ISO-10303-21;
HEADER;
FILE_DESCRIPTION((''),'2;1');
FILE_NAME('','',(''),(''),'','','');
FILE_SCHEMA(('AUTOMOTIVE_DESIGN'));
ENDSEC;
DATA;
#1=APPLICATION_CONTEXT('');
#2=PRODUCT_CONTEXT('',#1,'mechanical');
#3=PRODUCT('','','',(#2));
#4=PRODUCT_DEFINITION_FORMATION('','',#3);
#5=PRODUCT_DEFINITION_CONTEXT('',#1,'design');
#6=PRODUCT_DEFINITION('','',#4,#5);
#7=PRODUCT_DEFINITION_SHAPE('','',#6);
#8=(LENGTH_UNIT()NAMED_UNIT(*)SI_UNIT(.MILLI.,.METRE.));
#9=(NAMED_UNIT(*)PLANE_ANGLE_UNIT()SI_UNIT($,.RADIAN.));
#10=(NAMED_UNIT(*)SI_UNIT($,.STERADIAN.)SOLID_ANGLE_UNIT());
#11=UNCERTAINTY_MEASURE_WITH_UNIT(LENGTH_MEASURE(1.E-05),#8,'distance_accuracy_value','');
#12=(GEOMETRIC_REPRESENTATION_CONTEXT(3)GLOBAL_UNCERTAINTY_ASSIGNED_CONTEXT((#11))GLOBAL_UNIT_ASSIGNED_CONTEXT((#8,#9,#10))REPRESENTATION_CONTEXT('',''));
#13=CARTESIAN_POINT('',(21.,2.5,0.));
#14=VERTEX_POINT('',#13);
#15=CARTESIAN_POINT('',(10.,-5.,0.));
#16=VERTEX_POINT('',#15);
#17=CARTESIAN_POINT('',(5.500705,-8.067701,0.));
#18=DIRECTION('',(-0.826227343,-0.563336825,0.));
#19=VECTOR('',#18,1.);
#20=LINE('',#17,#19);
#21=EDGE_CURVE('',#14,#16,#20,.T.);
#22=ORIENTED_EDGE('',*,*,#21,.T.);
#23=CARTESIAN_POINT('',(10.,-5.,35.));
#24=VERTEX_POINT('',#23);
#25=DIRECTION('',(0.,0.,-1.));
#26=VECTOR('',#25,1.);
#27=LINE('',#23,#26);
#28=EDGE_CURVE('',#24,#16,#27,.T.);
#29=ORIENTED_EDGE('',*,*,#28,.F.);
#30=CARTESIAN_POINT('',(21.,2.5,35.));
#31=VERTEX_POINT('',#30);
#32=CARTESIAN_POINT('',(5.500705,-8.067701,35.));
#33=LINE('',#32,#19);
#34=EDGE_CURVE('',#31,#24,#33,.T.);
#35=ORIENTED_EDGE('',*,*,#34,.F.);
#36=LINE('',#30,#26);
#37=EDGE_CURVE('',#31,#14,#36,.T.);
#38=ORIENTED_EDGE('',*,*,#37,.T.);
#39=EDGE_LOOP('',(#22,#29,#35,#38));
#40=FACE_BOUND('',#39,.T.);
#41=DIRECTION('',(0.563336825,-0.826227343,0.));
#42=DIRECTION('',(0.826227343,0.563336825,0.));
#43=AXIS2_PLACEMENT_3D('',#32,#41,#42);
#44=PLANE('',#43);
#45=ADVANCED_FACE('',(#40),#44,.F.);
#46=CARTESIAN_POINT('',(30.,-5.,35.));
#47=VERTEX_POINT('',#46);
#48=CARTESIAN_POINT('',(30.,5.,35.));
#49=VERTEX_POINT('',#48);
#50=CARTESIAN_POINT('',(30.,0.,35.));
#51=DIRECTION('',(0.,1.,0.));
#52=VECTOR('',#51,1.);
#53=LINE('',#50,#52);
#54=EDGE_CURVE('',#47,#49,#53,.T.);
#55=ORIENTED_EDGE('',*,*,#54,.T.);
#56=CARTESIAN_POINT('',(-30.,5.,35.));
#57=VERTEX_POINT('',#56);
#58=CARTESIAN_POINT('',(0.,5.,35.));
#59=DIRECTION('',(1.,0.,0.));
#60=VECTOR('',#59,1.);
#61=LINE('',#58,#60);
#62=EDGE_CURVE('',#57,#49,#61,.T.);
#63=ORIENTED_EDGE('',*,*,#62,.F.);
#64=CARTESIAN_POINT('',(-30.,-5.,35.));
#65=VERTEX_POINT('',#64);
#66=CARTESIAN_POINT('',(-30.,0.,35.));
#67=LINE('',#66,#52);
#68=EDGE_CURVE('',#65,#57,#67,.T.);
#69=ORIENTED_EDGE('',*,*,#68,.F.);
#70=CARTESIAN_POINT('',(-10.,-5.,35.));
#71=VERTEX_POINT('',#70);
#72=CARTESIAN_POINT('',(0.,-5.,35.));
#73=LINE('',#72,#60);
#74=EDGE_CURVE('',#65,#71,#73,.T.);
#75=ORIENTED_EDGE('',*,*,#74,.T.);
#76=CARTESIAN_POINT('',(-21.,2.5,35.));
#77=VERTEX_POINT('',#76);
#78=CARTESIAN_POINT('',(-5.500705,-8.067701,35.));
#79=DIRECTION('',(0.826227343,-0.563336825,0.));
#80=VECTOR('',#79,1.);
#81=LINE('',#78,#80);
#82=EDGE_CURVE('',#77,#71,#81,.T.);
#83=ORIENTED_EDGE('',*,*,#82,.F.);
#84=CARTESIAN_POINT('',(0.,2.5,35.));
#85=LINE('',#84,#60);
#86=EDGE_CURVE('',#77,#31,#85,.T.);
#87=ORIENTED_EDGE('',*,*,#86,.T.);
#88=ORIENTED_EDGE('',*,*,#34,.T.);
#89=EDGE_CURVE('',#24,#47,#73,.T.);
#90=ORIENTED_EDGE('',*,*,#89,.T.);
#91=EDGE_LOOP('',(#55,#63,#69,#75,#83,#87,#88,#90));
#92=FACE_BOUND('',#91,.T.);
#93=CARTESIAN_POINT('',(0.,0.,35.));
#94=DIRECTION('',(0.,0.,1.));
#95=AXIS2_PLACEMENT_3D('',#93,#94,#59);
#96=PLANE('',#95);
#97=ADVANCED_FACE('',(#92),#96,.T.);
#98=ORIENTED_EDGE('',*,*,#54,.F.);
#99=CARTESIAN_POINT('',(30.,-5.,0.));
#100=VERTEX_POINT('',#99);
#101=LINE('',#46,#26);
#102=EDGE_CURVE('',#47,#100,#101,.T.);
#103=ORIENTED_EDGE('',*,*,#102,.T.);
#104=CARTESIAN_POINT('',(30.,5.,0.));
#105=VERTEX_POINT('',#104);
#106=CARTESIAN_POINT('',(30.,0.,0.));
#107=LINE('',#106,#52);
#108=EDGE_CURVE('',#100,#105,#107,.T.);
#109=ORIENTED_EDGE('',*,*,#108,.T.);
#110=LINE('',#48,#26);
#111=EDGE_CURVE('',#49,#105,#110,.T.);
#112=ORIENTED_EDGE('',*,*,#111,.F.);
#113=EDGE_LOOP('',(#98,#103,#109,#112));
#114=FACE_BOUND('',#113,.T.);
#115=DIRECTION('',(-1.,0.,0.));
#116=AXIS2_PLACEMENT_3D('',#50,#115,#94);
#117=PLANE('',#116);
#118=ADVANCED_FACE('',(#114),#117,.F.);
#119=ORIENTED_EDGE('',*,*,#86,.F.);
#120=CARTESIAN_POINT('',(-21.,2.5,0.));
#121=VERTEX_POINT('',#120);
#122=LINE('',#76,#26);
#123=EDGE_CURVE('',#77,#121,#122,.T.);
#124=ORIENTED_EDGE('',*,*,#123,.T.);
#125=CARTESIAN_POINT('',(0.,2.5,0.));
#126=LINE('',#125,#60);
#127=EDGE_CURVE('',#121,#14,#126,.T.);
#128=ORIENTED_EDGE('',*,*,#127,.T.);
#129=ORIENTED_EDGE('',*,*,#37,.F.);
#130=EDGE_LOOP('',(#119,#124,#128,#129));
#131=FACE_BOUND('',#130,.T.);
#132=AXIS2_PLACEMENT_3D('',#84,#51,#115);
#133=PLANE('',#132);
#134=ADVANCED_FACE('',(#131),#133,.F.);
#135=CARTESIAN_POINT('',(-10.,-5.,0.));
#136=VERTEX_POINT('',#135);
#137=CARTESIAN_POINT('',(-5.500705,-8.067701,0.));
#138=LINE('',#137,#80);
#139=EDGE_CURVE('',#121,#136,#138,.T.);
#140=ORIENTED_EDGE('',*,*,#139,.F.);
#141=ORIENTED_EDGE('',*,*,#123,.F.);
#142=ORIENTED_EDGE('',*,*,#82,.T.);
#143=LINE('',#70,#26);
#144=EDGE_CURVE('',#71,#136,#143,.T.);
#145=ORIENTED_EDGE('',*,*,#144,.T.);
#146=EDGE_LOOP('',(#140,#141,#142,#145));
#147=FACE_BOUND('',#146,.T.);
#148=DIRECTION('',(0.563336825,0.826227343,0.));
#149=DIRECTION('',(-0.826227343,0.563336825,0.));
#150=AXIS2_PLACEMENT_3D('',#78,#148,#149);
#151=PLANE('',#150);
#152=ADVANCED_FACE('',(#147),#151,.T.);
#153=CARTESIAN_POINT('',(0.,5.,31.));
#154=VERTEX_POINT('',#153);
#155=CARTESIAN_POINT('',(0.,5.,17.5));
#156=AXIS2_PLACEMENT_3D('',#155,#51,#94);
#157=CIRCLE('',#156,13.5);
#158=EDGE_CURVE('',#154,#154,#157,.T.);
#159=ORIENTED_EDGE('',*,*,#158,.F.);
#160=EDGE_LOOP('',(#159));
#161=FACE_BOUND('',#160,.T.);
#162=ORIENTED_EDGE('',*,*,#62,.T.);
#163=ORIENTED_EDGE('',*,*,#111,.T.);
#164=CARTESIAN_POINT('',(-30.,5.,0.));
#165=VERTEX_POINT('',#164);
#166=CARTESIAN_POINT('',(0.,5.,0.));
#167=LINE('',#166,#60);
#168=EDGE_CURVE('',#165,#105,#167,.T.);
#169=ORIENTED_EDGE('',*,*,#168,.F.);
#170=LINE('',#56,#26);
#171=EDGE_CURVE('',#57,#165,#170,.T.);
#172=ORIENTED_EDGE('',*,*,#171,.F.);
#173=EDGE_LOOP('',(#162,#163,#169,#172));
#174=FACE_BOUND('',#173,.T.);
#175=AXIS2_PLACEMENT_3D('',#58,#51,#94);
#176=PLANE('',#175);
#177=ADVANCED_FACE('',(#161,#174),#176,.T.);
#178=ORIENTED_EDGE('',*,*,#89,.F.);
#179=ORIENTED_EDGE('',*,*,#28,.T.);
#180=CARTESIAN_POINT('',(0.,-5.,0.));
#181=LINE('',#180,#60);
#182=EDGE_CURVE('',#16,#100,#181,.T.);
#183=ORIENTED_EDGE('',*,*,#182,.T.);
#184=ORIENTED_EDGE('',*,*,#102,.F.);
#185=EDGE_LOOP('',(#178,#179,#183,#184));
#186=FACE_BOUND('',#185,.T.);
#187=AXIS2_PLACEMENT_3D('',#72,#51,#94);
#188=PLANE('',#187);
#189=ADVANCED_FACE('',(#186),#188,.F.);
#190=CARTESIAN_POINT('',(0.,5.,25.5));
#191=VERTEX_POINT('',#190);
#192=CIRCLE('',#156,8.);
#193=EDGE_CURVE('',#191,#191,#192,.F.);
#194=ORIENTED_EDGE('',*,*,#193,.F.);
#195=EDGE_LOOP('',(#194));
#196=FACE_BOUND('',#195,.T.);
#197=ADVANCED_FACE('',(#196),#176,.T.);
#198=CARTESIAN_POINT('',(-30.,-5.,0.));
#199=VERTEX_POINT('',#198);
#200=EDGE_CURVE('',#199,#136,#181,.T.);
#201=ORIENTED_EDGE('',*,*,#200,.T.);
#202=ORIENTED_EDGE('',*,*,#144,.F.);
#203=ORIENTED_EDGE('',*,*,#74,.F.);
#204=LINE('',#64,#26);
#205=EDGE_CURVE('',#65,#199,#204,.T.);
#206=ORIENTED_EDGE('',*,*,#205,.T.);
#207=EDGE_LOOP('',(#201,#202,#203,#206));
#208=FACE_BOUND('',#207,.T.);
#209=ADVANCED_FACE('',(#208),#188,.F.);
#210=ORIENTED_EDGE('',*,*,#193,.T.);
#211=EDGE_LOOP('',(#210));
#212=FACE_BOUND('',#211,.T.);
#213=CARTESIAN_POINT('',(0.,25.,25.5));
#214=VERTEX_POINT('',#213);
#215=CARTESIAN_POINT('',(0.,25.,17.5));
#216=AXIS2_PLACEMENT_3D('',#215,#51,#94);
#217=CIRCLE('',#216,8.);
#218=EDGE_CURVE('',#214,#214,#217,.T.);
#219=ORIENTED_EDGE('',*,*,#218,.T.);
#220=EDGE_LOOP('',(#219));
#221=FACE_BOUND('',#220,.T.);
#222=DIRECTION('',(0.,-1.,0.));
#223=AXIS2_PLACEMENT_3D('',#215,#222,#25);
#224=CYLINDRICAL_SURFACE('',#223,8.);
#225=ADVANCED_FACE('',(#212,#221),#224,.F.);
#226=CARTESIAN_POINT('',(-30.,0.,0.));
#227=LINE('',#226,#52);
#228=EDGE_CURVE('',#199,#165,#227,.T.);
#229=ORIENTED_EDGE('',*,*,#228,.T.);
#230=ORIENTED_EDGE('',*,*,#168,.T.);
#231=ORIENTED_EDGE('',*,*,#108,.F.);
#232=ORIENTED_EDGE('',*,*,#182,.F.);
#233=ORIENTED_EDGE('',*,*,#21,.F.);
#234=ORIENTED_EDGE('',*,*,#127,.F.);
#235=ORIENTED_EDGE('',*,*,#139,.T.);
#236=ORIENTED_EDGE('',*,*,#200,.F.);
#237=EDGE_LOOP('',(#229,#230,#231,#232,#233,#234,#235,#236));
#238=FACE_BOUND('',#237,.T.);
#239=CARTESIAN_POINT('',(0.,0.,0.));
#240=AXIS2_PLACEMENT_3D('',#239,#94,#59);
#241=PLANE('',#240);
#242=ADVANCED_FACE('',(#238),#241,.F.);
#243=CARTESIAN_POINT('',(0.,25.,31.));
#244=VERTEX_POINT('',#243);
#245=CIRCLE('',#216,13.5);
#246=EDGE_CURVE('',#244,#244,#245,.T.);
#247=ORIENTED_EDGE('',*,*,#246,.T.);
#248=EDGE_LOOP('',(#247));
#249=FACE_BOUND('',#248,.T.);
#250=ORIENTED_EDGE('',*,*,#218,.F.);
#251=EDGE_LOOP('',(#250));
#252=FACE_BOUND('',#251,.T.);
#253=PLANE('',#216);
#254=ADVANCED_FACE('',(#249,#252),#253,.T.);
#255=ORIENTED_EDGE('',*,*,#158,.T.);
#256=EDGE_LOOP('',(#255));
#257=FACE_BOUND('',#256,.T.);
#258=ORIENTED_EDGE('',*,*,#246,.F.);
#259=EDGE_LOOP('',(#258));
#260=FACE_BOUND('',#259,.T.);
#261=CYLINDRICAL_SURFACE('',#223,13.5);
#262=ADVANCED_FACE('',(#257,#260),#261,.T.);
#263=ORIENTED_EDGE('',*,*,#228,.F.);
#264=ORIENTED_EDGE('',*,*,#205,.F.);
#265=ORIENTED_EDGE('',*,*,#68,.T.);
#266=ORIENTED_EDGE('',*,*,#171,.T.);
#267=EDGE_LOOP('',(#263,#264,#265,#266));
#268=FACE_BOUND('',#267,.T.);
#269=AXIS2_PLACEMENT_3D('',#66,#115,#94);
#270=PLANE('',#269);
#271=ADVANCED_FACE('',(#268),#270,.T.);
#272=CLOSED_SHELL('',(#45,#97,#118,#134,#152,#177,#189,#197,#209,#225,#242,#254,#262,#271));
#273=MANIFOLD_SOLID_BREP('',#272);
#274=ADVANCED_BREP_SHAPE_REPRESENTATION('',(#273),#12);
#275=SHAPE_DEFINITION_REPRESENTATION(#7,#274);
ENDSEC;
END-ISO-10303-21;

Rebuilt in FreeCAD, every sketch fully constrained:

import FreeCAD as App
import Part
import Sketcher

V = App.Vector
Q = App.Units.Quantity


def add_polygon(sketch, points):
    """Adds a closed chain of lines whose ends are joined by coincident constraints."""
    first, n = sketch.GeometryCount, len(points)
    for a, b in zip(points, points[1:] + points[:1]):
        sketch.addGeometry(Part.LineSegment(App.Vector(*a, 0), App.Vector(*b, 0)), False)
    for i in range(n):
        sketch.addConstraint(Sketcher.Constraint("Coincident", first + i, 2, first + (i + 1) % n, 1))

doc = App.newDocument("Part")
body = doc.addObject("PartDesign::Body", "Body")

# Sketch on XY plane
sketch1 = doc.addObject("Sketcher::SketchObject", "Sketch")
body.addObject(sketch1)
sketch1.AttachmentSupport = (doc.XY_Plane, [""])
sketch1.MapMode = "FlatFace"
add_polygon(sketch1, [(-30, 5), (-30, -5), (-10, -5), (-21, 2.5), (21, 2.5), (10, -5), (30, -5), (30, 5)])  # lines 0-7
sketch1.addConstraint(Sketcher.Constraint("Vertical", 0))
sketch1.addConstraint(Sketcher.Constraint("Horizontal", 1))
sketch1.addConstraint(Sketcher.Constraint("Horizontal", 3))
sketch1.addConstraint(Sketcher.Constraint("Horizontal", 5))
sketch1.addConstraint(Sketcher.Constraint("Vertical", 6))
sketch1.addConstraint(Sketcher.Constraint("Horizontal", 7))
sketch1.addConstraint(Sketcher.Constraint("Symmetric", 0, 2, 6, 2, -1, 1))
sketch1.addConstraint(Sketcher.Constraint("Symmetric", 1, 2, 4, 2, -2))
sketch1.addConstraint(Sketcher.Constraint("Equal", 2, 4))
sketch1.addConstraint(Sketcher.Constraint("DistanceX", 1, 1, 1, 2, Q("20 mm")))
sketch1.addConstraint(Sketcher.Constraint("DistanceX", 3, 1, 3, 2, Q("42 mm")))
sketch1.addConstraint(Sketcher.Constraint("DistanceX", 7, 2, 7, 1, Q("60 mm")))
sketch1.addConstraint(Sketcher.Constraint("DistanceY", 0, 2, 0, 1, Q("10 mm")))
sketch1.addConstraint(Sketcher.Constraint("DistanceY", -1, 1, 2, 2, Q("2.5 mm")))
pad1 = doc.addObject("PartDesign::Pad", "Pad")
body.addObject(pad1)
pad1.Profile = sketch1
pad1.Length = 35

# Sketch on XZ plane
sketch2 = doc.addObject("Sketcher::SketchObject", "Sketch001")
body.addObject(sketch2)
sketch2.AttachmentSupport = (doc.XZ_Plane, [""])
sketch2.MapMode = "FlatFace"
sketch2.AttachmentOffset = App.Placement(V(0, 0, -5), App.Rotation())
sketch2.addGeometry(Part.Circle(V(0, 17.5, 0), V(0, 0, 1), 13.5), False)
sketch2.addGeometry(Part.Circle(V(0, 17.5, 0), V(0, 0, 1), 8), False)
sketch2.addConstraint(Sketcher.Constraint("Coincident", 1, 3, 0, 3))
sketch2.addConstraint(Sketcher.Constraint("PointOnObject", 0, 3, -2))
sketch2.addConstraint(Sketcher.Constraint("Diameter", 0, Q("27 mm")))
sketch2.addConstraint(Sketcher.Constraint("Diameter", 1, Q("16 mm")))
sketch2.addConstraint(Sketcher.Constraint("DistanceY", -1, 1, 0, 3, Q("17.5 mm")))
pad2 = doc.addObject("PartDesign::Pad", "Pad001")
body.addObject(pad2)
pad2.Profile = sketch2
pad2.Length = 20
pad2.Reversed = True

doc.recompute()
